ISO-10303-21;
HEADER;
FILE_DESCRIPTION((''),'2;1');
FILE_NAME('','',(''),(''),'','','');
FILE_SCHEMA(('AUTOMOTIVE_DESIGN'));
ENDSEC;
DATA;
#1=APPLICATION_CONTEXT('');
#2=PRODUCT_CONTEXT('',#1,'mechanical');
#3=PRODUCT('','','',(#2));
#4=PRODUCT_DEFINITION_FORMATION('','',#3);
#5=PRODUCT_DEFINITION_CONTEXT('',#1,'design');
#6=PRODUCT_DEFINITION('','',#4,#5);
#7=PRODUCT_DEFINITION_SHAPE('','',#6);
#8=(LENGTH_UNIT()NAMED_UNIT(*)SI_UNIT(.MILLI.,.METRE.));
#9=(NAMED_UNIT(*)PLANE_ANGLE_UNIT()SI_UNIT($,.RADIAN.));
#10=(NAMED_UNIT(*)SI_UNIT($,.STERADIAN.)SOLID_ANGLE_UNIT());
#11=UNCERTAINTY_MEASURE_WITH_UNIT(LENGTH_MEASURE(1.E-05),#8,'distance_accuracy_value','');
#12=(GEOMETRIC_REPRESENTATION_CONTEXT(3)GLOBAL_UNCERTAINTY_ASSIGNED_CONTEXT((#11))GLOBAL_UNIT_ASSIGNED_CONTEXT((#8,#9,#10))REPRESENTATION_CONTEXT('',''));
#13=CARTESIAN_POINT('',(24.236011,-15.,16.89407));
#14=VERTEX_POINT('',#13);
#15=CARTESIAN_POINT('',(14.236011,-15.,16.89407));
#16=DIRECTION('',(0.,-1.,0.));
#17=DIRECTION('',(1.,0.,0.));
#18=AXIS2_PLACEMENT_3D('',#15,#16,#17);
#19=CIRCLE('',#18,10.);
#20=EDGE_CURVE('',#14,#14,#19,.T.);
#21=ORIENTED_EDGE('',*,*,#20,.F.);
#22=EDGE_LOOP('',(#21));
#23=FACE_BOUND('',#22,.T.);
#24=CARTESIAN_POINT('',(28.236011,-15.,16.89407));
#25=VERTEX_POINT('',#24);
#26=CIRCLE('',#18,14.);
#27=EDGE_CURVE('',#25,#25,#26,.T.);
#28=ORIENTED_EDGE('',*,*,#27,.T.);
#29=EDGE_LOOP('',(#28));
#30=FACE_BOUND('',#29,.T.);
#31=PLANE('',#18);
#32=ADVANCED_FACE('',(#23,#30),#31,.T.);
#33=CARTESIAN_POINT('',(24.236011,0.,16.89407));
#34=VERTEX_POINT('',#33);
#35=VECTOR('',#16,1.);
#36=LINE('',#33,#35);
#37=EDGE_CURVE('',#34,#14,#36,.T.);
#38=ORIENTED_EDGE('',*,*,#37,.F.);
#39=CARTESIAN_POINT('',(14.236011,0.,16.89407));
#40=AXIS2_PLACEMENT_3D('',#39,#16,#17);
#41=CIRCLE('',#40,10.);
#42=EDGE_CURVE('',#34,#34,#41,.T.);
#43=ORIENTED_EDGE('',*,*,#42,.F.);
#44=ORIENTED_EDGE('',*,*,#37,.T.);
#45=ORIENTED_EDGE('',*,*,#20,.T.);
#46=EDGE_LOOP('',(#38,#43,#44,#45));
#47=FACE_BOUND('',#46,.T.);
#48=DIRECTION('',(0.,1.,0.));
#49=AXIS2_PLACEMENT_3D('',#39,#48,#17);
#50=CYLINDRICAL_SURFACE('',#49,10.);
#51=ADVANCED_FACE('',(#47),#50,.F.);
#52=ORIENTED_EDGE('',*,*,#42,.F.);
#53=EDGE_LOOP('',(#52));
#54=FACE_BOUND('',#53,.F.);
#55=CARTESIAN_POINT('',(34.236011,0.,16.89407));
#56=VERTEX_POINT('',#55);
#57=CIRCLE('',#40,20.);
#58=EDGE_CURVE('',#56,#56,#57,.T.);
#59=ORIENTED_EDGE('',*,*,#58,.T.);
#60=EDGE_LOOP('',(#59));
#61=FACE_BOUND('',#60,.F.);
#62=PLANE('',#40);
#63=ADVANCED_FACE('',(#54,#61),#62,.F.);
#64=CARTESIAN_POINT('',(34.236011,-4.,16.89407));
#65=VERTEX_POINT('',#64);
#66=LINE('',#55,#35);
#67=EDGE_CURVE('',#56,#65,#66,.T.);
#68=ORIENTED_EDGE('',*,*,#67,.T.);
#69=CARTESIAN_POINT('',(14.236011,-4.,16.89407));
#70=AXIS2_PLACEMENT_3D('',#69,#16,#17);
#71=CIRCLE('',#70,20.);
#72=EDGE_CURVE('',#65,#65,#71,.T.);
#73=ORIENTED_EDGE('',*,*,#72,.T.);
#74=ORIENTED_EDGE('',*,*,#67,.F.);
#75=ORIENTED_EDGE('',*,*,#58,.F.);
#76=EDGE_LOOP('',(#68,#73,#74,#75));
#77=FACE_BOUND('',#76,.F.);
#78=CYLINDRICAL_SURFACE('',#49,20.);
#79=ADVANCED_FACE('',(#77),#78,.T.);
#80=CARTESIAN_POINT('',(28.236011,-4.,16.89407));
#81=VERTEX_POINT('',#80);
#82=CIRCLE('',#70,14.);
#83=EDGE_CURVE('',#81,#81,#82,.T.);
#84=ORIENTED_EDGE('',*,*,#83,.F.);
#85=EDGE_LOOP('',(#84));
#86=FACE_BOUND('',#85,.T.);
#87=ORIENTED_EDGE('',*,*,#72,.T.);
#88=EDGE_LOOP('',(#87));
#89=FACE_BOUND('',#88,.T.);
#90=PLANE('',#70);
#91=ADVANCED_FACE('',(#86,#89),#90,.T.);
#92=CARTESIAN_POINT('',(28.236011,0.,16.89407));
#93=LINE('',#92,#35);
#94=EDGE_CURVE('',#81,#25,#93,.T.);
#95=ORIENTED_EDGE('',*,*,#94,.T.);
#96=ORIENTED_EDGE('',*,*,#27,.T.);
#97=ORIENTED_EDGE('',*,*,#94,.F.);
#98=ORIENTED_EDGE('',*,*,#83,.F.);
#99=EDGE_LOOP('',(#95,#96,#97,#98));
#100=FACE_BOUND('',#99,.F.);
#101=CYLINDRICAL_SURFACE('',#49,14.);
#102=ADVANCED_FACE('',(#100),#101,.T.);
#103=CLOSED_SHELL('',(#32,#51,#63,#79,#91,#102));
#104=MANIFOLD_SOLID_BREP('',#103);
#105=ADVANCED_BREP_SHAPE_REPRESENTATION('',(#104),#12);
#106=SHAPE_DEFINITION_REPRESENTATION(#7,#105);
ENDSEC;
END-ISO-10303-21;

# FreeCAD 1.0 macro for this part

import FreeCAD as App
import Part
import Sketcher

doc = App.newDocument("Part")
body = doc.addObject("PartDesign::Body", "Body")

sketch1 = doc.addObject("Sketcher::SketchObject", "Sketch")
body.addObject(sketch1)
sketch1.AttachmentSupport = (doc.XZ_Plane, [""])
sketch1.MapMode = "FlatFace"
sketch1.addGeometry([
    Part.Circle(App.Vector(14, 17, 0), App.Vector(0, 0, 1), 20),
    Part.Circle(App.Vector(14, 17, 0), App.Vector(0, 0, 1), 14),
], False)
sketch1.addConstraint([
    Sketcher.Constraint("Coincident", 1, 3, 0, 3),
    Sketcher.Constraint("Diameter", 0, 40.0),
    Sketcher.Constraint("Diameter", 1, 28.0),
    Sketcher.Constraint("DistanceX", -1, 1, 0, 3, 14.236011),
    Sketcher.Constraint("DistanceY", -1, 1, 0, 3, 16.89407),
])
pad1 = doc.addObject("PartDesign::Pad", "Pad")
body.addObject(pad1)
pad1.Profile = sketch1
pad1.Length = 4

sketch2 = doc.addObject("Sketcher::SketchObject", "Sketch001")
body.addObject(sketch2)
sketch2.AttachmentSupport = (doc.XZ_Plane, [""])
sketch2.MapMode = "FlatFace"
sketch2.addGeometry([
    Part.Circle(App.Vector(14, 17, 0), App.Vector(0, 0, 1), 14),
    Part.Circle(App.Vector(14, 17, 0), App.Vector(0, 0, 1), 10),
], False)
sketch2.addConstraint([
    Sketcher.Constraint("Coincident", 1, 3, 0, 3),
    Sketcher.Constraint("Diameter", 0, 28.0),
    Sketcher.Constraint("Diameter", 1, 20.0),
    Sketcher.Constraint("DistanceX", -1, 1, 0, 3, 14.236011),
    Sketcher.Constraint("DistanceY", -1, 1, 0, 3, 16.89407),
])
pad2 = doc.addObject("PartDesign::Pad", "Pad001")
body.addObject(pad2)
pad2.Profile = sketch2
pad2.Length = 15

doc.recompute()
